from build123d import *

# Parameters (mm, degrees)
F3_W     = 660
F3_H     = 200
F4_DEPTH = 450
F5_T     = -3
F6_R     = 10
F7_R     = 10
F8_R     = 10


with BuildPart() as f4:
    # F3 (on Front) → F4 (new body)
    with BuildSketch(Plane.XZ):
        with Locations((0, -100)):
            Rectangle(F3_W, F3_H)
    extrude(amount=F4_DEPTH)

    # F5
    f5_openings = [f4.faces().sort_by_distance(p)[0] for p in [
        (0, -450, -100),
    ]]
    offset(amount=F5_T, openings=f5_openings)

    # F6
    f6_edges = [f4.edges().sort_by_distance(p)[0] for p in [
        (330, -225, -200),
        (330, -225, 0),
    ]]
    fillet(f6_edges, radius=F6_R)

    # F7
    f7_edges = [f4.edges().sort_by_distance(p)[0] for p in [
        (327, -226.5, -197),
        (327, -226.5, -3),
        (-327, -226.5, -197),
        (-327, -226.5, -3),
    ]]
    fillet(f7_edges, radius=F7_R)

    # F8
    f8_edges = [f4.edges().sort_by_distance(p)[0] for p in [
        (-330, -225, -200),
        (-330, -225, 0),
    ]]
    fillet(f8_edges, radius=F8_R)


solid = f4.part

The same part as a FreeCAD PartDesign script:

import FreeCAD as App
import Part
import Sketcher
Q = App.Units.Quantity


def edges_at(feature, points):
    """Names of the edges that pass closest to the given points."""
    edges = feature.Shape.Edges
    near = lambda p: min(range(len(edges)), key=lambda i: edges[i].distToShape(Part.Vertex(*p))[0])
    return sorted({f"Edge{near(p) + 1}" for p in points})


def faces_at(feature, points):
    """Names of the faces that lie closest to the given points."""
    faces = feature.Shape.Faces
    near = lambda p: min(range(len(faces)), key=lambda i: faces[i].distToShape(Part.Vertex(*p))[0])
    return sorted({f"Face{near(p) + 1}" for p in points})


def add_polygon(sketch, points):
    """Adds a closed chain of lines whose ends are joined by coincident constraints."""
    first, n = sketch.GeometryCount, len(points)
    for a, b in zip(points, points[1:] + points[:1]):
        sketch.addGeometry(Part.LineSegment(App.Vector(*a, 0), App.Vector(*b, 0)), False)
    for i in range(n):
        sketch.addConstraint(Sketcher.Constraint("Coincident", first + i, 2, first + (i + 1) % n, 1))

doc = App.newDocument("Part")
body = doc.addObject("PartDesign::Body", "Body")

sketch1 = body.newObject("Sketcher::SketchObject", "Sketch")
sketch1.AttachmentSupport = (doc.getObject("XZ_Plane"), [""])
sketch1.MapMode = "FlatFace"
add_polygon(sketch1, [(-330, 0), (-330, -200), (330, -200), (330, 0)])
sketch1.addConstraint(Sketcher.Constraint("Vertical", 0))
sketch1.addConstraint(Sketcher.Constraint("Horizontal", 1))
sketch1.addConstraint(Sketcher.Constraint("Vertical", 2))
sketch1.addConstraint(Sketcher.Constraint("Horizontal", 3))
sketch1.addConstraint(Sketcher.Constraint("Symmetric", 2, 2, 3, 2, -1, 1))
sketch1.addConstraint(Sketcher.Constraint("DistanceX", 1, 1, 1, 2, Q("660 mm")))
sketch1.addConstraint(Sketcher.Constraint("DistanceY", 0, 2, 0, 1, Q("200 mm")))
pad1 = body.newObject("PartDesign::Pad", "Pad")
pad1.Profile = sketch1
pad1.Length = 450
doc.recompute()

thickness = body.newObject("PartDesign::Thickness", "Thickness")
thickness.Base = (pad1, faces_at(pad1, [(0, -450, -100)]))
thickness.Value = 3
thickness.Reversed = True
thickness.Join = "Arc"
doc.recompute()

fillet = body.newObject("PartDesign::Fillet", "Fillet")
fillet.Base = (thickness, edges_at(thickness, [(330, -225, -200), (330, -225, 0)]))
fillet.Radius = 10
doc.recompute()

fillet2 = body.newObject("PartDesign::Fillet", "Fillet001")
fillet2.Base = (fillet, edges_at(fillet, [
    (327, -226.5, -197),
    (327, -226.5, -3),
    (-327, -226.5, -197),
    (-327, -226.5, -3),
]))
fillet2.Radius = 10
doc.recompute()

fillet3 = body.newObject("PartDesign::Fillet", "Fillet002")
fillet3.Base = (fillet2, edges_at(fillet2, [(-330, -225, -200), (-330, -225, 0)]))
fillet3.Radius = 10

doc.recompute()
